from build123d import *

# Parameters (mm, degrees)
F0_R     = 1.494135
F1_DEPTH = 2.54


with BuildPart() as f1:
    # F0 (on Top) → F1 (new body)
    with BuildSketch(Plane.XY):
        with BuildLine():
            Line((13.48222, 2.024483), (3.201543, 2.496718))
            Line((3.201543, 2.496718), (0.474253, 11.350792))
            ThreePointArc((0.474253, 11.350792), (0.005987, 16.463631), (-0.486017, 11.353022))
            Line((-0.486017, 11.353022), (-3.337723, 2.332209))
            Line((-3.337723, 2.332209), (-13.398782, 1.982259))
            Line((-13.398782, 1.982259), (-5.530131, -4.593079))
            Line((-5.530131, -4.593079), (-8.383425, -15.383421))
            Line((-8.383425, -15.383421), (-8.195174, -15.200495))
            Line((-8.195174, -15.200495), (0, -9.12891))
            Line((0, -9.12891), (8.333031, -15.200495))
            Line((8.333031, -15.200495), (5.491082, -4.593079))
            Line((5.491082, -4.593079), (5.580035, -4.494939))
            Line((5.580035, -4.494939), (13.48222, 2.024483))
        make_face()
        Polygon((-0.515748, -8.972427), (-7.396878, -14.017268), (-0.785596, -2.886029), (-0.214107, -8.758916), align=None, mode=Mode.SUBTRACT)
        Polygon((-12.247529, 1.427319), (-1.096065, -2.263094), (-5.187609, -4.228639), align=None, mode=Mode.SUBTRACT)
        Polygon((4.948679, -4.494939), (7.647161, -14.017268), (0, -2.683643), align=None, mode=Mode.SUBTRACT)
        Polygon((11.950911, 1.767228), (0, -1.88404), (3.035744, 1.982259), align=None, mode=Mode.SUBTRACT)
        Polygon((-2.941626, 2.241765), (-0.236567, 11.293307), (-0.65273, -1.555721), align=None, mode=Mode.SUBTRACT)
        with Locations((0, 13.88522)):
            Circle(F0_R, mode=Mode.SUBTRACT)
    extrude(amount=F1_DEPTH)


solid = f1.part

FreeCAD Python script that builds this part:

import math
import FreeCAD as App
import Part
import Sketcher
Q = App.Units.Quantity


def add_polygon(sketch, points):
    """Adds a closed chain of lines whose ends are joined by coincident constraints."""
    first, n = sketch.GeometryCount, len(points)
    for a, b in zip(points, points[1:] + points[:1]):
        sketch.addGeometry(Part.LineSegment(App.Vector(*a, 0), App.Vector(*b, 0)), False)
    for i in range(n):
        sketch.addConstraint(Sketcher.Constraint("Coincident", first + i, 2, first + (i + 1) % n, 1))

doc = App.newDocument("Part")
body = doc.addObject("PartDesign::Body", "Body")

# Sketch on XY plane
sketch1 = body.newObject("Sketcher::SketchObject", "Sketch")
sketch1.AttachmentSupport = (doc.getObject("XY_Plane"), [""])
sketch1.MapMode = "FlatFace"
sketch1.addGeometry(Part.LineSegment(App.Vector(13.48, 2.02, 0), App.Vector(3.2, 2.5, 0)), False)  # 0
sketch1.addGeometry(Part.LineSegment(App.Vector(3.2, 2.5, 0), App.Vector(0.47, 11.35, 0)), False)  # 1
sketch1.addGeometry(Part.ArcOfCircle(Part.Circle(App.Vector(0, 13.89, 0), App.Vector(0, 0, 1), 2.58), math.radians(-79), math.radians(259)), False)  # 2
sketch1.addGeometry(Part.LineSegment(App.Vector(-0.49, 11.35, 0), App.Vector(-3.34, 2.33, 0)), False)  # 3
sketch1.addGeometry(Part.LineSegment(App.Vector(-3.34, 2.33, 0), App.Vector(-13.4, 1.98, 0)), False)  # 4
sketch1.addGeometry(Part.LineSegment(App.Vector(-13.4, 1.98, 0), App.Vector(-5.53, -4.59, 0)), False)  # 5
sketch1.addGeometry(Part.LineSegment(App.Vector(-5.53, -4.59, 0), App.Vector(-8.38, -15.38, 0)), False)  # 6
sketch1.addGeometry(Part.LineSegment(App.Vector(-8.38, -15.38, 0), App.Vector(-8.2, -15.2, 0)), False)  # 7
sketch1.addGeometry(Part.LineSegment(App.Vector(-8.2, -15.2, 0), App.Vector(0, -9.13, 0)), False)  # 8
sketch1.addGeometry(Part.LineSegment(App.Vector(0, -9.13, 0), App.Vector(8.33, -15.2, 0)), False)  # 9
sketch1.addGeometry(Part.LineSegment(App.Vector(8.33, -15.2, 0), App.Vector(5.49, -4.59, 0)), False)  # 10
sketch1.addGeometry(Part.LineSegment(App.Vector(5.49, -4.59, 0), App.Vector(5.58, -4.49, 0)), False)  # 11
sketch1.addGeometry(Part.LineSegment(App.Vector(5.58, -4.49, 0), App.Vector(13.48, 2.02, 0)), False)  # 12
add_polygon(sketch1, [(-0.21, -8.76), (-0.52, -8.97), (-7.4, -14.02), (-0.79, -2.89)])  # lines 13-16
add_polygon(sketch1, [(-5.19, -4.23), (-12.25, 1.43), (-1.1, -2.26)])  # lines 17-19
add_polygon(sketch1, [(0, -2.68), (4.95, -4.49), (7.65, -14.02)])  # lines 20-22
add_polygon(sketch1, [(3.04, 1.98), (11.95, 1.77), (0, -1.88)])  # lines 23-25
add_polygon(sketch1, [(-0.65, -1.56), (-2.94, 2.24), (-0.24, 11.29)])  # lines 26-28
sketch1.addGeometry(Part.Circle(App.Vector(0, 13.89, 0), App.Vector(0, 0, 1), 1.49), False)  # 29
sketch1.addConstraint(Sketcher.Constraint("Coincident", 0, 2, 1, 1))
sketch1.addConstraint(Sketcher.Constraint("Coincident", 1, 2, 2, 1))
sketch1.addConstraint(Sketcher.Constraint("Coincident", 2, 2, 3, 1))
sketch1.addConstraint(Sketcher.Constraint("Coincident", 3, 2, 4, 1))
sketch1.addConstraint(Sketcher.Constraint("Coincident", 4, 2, 5, 1))
sketch1.addConstraint(Sketcher.Constraint("Coincident", 5, 2, 6, 1))
sketch1.addConstraint(Sketcher.Constraint("Coincident", 6, 2, 7, 1))
sketch1.addConstraint(Sketcher.Constraint("Coincident", 7, 2, 8, 1))
sketch1.addConstraint(Sketcher.Constraint("Coincident", 8, 2, 9, 1))
sketch1.addConstraint(Sketcher.Constraint("Coincident", 9, 2, 10, 1))
sketch1.addConstraint(Sketcher.Constraint("Coincident", 10, 2, 11, 1))
sketch1.addConstraint(Sketcher.Constraint("Coincident", 11, 2, 12, 1))
sketch1.addConstraint(Sketcher.Constraint("Coincident", 12, 2, 0, 1))
sketch1.addConstraint(Sketcher.Constraint("Coincident", 29, 3, 2, 3))
sketch1.addConstraint(Sketcher.Constraint("PointOnObject", 2, 3, -2))
sketch1.addConstraint(Sketcher.Constraint("PointOnObject", 8, 2, -2))
sketch1.addConstraint(Sketcher.Constraint("PointOnObject", 22, 2, -2))
sketch1.addConstraint(Sketcher.Constraint("PointOnObject", 24, 2, -2))
sketch1.addConstraint(Sketcher.Constraint("Horizontal", 7, 2, 9, 2))
sketch1.addConstraint(Sketcher.Constraint("Horizontal", 5, 2, 10, 2))
sketch1.addConstraint(Sketcher.Constraint("Horizontal", 11, 2, 20, 2))
sketch1.addConstraint(Sketcher.Constraint("Horizontal", 14, 2, 21, 2))
sketch1.addConstraint(Sketcher.Constraint("Horizontal", 4, 2, 25, 2))
sketch1.addConstraint(Sketcher.Constraint("Angle", 0, Q("177.370011 deg")))
sketch1.addConstraint(Sketcher.Constraint("Diameter", 29, Q("2.98827 mm")))
sketch1.addConstraint(Sketcher.Constraint("Radius", 2, Q("2.578418 mm")))
sketch1.addConstraint(Sketcher.Constraint("Distance", 21, Q("9.8973 mm")))
sketch1.addConstraint(Sketcher.Constraint("DistanceY", 0, 2, 2, 3, Q("11.388502 mm")))
sketch1.addConstraint(Sketcher.Constraint("DistanceY", 2, 2, 29, 3, Q("2.532198 mm")))
sketch1.addConstraint(Sketcher.Constraint("DistanceY", 5, 2, 2, 2, Q("15.946101 mm")))
sketch1.addConstraint(Sketcher.Constraint("DistanceX", 17, 2, 5, 2, Q("6.717398 mm")))
sketch1.addConstraint(Sketcher.Constraint("DistanceX", 25, 2, 0, 2, Q("0.165799 mm")))
sketch1.addConstraint(Sketcher.Constraint("DistanceY", 24, 2, 25, 2, Q("3.866299 mm")))
sketch1.addConstraint(Sketcher.Constraint("Distance", 3, Q("9.460829 mm")))
sketch1.addConstraint(Sketcher.Constraint("Distance", 7, Q("0.262489 mm")))
sketch1.addConstraint(Sketcher.Constraint("Distance", 9, Q("10.310361 mm")))
sketch1.addConstraint(Sketcher.Constraint("Distance", 13, Q("0.36956 mm")))
sketch1.addConstraint(Sketcher.Constraint("Distance", 22, Q("13.672239 mm")))
sketch1.addConstraint(Sketcher.Constraint("Distance", 23, Q("8.91776 mm")))
sketch1.addConstraint(Sketcher.Constraint("Distance", 24, Q("12.496241 mm")))
sketch1.addConstraint(Sketcher.Constraint("Distance", 25, Q("4.91569 mm")))
sketch1.addConstraint(Sketcher.Constraint("DistanceY", -1, 1, 2, 3, Q("13.88522 mm")))
sketch1.addConstraint(Sketcher.Constraint("DistanceY", -1, 1, 3, 2, Q("2.332209 mm")))
sketch1.addConstraint(Sketcher.Constraint("DistanceY", -1, 1, 4, 2, Q("1.982259 mm")))
sketch1.addConstraint(Sketcher.Constraint("DistanceX", 5, 2, -1, 1, Q("5.530131 mm")))
sketch1.addConstraint(Sketcher.Constraint("DistanceY", 6, 2, -1, 1, Q("15.383421 mm")))
sketch1.addConstraint(Sketcher.Constraint("DistanceY", 8, 2, -1, 1, Q("9.12891 mm")))
sketch1.addConstraint(Sketcher.Constraint("DistanceX", -1, 1, 9, 2, Q("8.333031 mm")))
sketch1.addConstraint(Sketcher.Constraint("DistanceX", -1, 1, 10, 2, Q("5.491082 mm")))
sketch1.addConstraint(Sketcher.Constraint("DistanceY", 11, 2, -1, 1, Q("4.494939 mm")))
sketch1.addConstraint(Sketcher.Constraint("DistanceX", -1, 1, 12, 2, Q("13.48222 mm")))
sketch1.addConstraint(Sketcher.Constraint("DistanceY", 15, 2, -1, 1, Q("2.886029 mm")))
sketch1.addConstraint(Sketcher.Constraint("DistanceY", -1, 1, 17, 2, Q("1.427319 mm")))
sketch1.addConstraint(Sketcher.Constraint("DistanceX", 19, 2, -1, 1, Q("5.187609 mm")))
sketch1.addConstraint(Sketcher.Constraint("DistanceY", 19, 2, -1, 1, Q("4.228639 mm")))
sketch1.addConstraint(Sketcher.Constraint("DistanceX", -1, 1, 20, 2, Q("4.948679 mm")))
sketch1.addConstraint(Sketcher.Constraint("DistanceX", -1, 1, 21, 2, Q("7.647161 mm")))
sketch1.addConstraint(Sketcher.Constraint("DistanceX", 28, 2, -1, 1, Q("0.65273 mm")))
sketch1.addConstraint(Sketcher.Constraint("DistanceY", 28, 2, -1, 1, Q("1.555721 mm")))
sketch1.addConstraint(Sketcher.Constraint("DistanceX", 2, 3, 1, 2, Q("0.474252 mm")))
sketch1.addConstraint(Sketcher.Constraint("DistanceX", 4, 2, 3, 2, Q("10.061059 mm")))
sketch1.addConstraint(Sketcher.Constraint("DistanceX", 4, 2, 7, 2, Q("5.203608 mm")))
sketch1.addConstraint(Sketcher.Constraint("DistanceX", 0, 2, 11, 2, Q("2.378492 mm")))
sketch1.addConstraint(Sketcher.Constraint("DistanceX", 13, 2, 10, 2, Q("6.00683 mm")))
sketch1.addConstraint(Sketcher.Constraint("DistanceY", 7, 2, 13, 2, Q("6.228068 mm")))
sketch1.addConstraint(Sketcher.Constraint("DistanceX", 14, 2, 13, 2, Q("6.88113 mm")))
sketch1.addConstraint(Sketcher.Constraint("DistanceX", 13, 2, 16, 2, Q("0.301641 mm")))
sketch1.addConstraint(Sketcher.Constraint("DistanceX", 15, 2, 16, 2, Q("0.571489 mm")))
sketch1.addConstraint(Sketcher.Constraint("DistanceX", 18, 2, 15, 2, Q("0.310469 mm")))
sketch1.addConstraint(Sketcher.Constraint("DistanceY", 16, 2, 18, 2, Q("6.495822 mm")))
sketch1.addConstraint(Sketcher.Constraint("DistanceX", 26, 2, 18, 2, Q("1.845561 mm")))
sketch1.addConstraint(Sketcher.Constraint("DistanceY", 18, 2, 26, 2, Q("4.504859 mm")))
sketch1.addConstraint(Sketcher.Constraint("DistanceX", 2, 2, 27, 2, Q("0.24945 mm")))
sketch1.addConstraint(Sketcher.Constraint("DistanceY", 0, 2, 27, 2, Q("8.796589 mm")))
pad1 = body.newObject("PartDesign::Pad", "Pad")
pad1.Profile = sketch1
pad1.Length = Q("0.1 in")

doc.recompute()
